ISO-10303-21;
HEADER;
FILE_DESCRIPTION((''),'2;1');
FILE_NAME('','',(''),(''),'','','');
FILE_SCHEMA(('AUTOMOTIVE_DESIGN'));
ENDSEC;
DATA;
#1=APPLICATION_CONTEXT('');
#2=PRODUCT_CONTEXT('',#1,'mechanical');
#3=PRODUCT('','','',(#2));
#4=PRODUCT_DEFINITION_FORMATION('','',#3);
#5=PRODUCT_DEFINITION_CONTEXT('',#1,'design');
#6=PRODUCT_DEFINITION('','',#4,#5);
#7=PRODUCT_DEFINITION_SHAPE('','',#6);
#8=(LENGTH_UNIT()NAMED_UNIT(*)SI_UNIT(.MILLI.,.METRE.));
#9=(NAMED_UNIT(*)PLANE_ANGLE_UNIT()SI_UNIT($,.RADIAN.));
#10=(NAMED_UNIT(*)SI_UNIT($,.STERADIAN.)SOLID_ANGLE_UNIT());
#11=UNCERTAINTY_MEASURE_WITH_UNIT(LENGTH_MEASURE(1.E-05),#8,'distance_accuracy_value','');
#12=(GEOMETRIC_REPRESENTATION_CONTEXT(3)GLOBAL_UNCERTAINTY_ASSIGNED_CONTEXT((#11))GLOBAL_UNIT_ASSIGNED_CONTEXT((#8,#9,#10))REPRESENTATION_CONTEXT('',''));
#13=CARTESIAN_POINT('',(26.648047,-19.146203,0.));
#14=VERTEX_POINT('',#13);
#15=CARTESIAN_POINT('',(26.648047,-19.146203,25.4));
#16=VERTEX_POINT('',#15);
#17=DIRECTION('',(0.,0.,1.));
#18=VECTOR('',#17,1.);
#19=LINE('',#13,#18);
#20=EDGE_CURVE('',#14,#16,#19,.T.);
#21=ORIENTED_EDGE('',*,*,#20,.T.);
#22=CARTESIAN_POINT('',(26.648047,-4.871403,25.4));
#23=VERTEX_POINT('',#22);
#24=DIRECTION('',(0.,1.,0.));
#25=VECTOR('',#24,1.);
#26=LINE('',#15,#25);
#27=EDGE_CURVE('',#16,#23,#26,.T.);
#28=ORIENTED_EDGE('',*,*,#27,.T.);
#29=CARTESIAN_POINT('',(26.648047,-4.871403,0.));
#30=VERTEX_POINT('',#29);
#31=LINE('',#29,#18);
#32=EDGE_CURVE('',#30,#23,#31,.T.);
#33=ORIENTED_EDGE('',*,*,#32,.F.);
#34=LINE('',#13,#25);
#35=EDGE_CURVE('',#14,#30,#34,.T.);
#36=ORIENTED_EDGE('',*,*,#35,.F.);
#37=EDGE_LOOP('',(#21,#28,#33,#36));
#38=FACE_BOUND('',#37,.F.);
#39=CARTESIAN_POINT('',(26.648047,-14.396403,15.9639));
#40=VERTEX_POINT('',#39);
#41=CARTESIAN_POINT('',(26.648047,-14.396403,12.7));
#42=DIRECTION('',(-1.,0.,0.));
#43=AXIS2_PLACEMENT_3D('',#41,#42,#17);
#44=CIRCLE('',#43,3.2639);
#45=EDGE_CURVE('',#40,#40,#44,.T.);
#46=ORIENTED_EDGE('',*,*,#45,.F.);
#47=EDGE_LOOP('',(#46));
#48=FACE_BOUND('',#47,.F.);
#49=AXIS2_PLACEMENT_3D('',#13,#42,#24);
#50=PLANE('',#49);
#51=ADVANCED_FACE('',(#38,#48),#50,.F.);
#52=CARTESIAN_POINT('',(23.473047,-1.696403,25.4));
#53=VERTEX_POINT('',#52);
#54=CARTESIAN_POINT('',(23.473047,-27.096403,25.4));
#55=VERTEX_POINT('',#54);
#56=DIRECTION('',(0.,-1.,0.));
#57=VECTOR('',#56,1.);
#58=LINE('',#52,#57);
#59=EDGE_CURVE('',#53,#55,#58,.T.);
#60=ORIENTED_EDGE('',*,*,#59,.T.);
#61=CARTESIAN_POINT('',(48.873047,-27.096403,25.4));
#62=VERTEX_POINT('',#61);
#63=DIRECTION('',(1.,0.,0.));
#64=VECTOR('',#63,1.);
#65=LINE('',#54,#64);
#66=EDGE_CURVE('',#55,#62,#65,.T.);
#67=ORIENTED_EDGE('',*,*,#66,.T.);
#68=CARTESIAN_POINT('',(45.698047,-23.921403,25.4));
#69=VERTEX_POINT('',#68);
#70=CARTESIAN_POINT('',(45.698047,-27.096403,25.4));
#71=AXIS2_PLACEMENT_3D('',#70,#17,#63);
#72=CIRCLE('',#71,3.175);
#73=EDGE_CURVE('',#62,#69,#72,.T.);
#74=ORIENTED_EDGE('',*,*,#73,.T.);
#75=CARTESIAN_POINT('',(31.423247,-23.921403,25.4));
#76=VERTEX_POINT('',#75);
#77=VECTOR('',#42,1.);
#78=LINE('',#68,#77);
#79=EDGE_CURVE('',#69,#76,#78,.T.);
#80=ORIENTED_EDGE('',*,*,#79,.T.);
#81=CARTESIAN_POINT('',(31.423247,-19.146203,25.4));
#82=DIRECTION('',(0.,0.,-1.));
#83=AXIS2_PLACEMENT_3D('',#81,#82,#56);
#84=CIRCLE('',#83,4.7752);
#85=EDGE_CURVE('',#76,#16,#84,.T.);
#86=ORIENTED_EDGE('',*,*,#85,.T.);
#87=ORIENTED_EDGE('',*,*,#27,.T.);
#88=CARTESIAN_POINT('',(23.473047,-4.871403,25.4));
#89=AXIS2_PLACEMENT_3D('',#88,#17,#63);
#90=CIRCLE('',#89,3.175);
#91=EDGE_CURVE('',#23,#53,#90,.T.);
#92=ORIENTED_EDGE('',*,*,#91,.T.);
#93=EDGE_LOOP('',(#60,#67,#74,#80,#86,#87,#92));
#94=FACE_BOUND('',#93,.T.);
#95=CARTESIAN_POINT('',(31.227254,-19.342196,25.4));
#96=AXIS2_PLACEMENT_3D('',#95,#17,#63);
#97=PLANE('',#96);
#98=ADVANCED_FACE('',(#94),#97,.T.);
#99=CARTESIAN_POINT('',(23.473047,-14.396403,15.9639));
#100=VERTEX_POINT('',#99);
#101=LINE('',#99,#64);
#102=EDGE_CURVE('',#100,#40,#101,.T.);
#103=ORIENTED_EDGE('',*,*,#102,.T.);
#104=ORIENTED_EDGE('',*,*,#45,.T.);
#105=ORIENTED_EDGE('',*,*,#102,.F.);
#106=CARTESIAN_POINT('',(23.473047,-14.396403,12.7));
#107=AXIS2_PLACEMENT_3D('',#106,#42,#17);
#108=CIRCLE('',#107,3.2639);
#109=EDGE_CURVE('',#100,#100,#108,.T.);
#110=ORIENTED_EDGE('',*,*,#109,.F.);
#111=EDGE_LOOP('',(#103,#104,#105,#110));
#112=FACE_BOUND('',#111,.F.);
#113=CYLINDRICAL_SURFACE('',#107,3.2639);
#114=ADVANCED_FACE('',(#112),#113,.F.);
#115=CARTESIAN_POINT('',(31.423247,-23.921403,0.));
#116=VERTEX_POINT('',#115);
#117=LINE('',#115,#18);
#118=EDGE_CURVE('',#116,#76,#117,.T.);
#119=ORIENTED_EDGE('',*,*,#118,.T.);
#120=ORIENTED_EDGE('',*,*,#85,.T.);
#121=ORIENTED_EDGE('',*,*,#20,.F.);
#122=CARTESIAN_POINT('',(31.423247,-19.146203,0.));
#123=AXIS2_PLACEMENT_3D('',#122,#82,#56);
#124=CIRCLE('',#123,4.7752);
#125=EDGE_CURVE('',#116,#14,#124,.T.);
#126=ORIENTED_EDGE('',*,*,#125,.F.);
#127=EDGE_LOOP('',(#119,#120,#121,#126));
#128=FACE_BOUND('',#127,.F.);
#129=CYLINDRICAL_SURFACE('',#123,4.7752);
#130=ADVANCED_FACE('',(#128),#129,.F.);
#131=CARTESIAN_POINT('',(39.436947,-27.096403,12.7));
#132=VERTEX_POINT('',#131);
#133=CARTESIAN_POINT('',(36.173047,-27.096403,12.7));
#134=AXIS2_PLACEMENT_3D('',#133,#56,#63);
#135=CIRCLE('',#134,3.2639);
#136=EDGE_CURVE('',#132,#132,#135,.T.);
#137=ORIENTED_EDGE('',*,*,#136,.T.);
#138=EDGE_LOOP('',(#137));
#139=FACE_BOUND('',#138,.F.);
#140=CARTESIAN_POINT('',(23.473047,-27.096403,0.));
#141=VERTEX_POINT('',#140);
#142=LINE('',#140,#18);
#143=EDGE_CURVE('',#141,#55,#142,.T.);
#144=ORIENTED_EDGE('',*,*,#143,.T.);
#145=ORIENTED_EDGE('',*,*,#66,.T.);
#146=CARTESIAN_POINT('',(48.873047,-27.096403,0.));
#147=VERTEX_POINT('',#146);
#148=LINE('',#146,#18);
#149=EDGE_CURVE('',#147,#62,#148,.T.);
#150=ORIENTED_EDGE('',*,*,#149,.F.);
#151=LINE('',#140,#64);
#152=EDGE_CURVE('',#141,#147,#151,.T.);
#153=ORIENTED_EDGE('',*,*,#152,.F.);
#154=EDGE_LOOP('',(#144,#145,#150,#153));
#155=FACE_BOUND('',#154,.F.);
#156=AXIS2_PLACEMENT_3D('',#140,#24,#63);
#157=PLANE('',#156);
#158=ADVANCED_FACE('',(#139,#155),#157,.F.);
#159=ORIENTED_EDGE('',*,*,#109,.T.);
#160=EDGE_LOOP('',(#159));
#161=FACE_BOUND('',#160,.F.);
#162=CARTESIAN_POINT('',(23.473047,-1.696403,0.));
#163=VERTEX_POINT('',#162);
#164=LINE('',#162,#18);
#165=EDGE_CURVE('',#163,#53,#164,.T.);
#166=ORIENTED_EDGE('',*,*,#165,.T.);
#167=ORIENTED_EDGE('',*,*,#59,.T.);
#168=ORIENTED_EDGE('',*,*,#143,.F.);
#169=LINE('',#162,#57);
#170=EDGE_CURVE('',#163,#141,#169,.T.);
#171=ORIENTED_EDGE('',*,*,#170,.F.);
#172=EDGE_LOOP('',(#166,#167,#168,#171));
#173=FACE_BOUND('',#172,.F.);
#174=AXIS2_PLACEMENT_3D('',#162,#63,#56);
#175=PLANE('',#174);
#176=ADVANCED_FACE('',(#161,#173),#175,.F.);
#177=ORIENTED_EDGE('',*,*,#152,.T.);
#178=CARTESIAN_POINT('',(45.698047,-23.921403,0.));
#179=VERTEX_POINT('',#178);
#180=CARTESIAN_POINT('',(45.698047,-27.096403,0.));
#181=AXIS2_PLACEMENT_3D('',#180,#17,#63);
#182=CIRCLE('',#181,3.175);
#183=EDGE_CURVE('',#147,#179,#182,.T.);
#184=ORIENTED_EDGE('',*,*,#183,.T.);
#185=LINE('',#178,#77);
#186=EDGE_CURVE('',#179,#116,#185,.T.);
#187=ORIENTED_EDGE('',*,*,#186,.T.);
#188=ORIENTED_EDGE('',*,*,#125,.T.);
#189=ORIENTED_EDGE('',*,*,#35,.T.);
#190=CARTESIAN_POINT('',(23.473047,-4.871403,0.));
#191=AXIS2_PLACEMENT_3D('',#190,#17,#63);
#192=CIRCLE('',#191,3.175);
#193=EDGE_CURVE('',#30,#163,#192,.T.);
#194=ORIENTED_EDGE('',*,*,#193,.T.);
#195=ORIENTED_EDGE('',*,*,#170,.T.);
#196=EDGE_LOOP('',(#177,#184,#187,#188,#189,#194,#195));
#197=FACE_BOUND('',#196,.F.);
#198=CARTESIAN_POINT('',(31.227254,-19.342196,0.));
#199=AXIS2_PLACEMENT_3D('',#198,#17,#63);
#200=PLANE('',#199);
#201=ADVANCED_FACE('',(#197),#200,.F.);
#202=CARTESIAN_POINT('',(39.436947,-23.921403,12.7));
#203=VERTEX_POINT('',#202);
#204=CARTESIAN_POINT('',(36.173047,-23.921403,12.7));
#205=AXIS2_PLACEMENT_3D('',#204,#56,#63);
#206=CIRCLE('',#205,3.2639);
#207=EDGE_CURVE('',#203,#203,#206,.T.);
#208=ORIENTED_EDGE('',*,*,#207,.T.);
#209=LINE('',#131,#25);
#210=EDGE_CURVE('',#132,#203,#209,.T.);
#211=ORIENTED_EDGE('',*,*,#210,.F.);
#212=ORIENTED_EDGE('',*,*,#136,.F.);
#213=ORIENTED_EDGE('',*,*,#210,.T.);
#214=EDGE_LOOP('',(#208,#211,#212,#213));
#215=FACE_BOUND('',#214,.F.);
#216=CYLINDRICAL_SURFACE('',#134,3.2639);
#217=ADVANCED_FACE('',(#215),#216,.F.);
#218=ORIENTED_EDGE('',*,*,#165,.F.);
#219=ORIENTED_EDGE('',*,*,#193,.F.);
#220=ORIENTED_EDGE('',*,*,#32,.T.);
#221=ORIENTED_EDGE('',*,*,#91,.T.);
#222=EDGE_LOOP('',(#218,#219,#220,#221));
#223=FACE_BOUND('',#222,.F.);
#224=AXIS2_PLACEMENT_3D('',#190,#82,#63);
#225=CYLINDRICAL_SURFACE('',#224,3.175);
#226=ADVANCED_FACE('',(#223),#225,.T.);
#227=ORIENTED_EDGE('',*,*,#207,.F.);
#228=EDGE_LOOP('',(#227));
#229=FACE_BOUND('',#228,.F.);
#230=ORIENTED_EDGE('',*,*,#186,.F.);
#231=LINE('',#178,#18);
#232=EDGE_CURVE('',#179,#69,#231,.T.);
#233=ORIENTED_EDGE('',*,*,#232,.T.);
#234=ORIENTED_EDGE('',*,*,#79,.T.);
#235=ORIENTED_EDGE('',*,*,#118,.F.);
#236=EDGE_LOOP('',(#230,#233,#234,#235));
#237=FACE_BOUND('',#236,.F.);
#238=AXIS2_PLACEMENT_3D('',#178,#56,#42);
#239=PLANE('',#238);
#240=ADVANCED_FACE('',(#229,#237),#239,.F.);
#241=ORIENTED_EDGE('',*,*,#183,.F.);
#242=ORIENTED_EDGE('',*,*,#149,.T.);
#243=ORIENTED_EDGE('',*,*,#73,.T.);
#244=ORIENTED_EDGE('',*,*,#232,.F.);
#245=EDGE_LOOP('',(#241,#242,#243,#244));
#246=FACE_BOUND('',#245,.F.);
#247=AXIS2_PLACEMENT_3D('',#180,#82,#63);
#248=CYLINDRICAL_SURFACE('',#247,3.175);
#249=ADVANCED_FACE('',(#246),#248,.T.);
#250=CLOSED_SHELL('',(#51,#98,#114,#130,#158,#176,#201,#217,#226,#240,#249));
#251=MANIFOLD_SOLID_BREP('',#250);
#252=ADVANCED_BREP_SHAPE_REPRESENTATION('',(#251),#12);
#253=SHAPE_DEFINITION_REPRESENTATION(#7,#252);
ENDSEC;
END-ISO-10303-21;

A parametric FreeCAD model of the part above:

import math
import FreeCAD as App
import Part
import Sketcher

V = App.Vector
Q = App.Units.Quantity

doc = App.newDocument("Part")
body = doc.addObject("PartDesign::Body", "Body")

sketch1 = body.newObject("Sketcher::SketchObject", "Sketch")
sketch1.AttachmentSupport = (doc.getObject("XY_Plane"), [""])
sketch1.MapMode = "FlatFace"
sketch1.addGeometry([
    Part.LineSegment(V(23.5, -1.7, 0), V(23.5, -27.1, 0)),
    Part.LineSegment(V(23.5, -27.1, 0), V(48.9, -27.1, 0)),
    Part.ArcOfCircle(Part.Circle(V(45.7, -27.1, 0), V(0, 0, 1), 3.2), math.radians(0), math.radians(90)),
    Part.LineSegment(V(45.7, -23.9, 0), V(31.4, -23.9, 0)),
    Part.ArcOfCircle(Part.Circle(V(31.4, -19.1, 0), V(0, 0, 1), 4.8), math.radians(180), math.radians(270)),
    Part.LineSegment(V(26.6, -19.1, 0), V(26.6, -4.9, 0)),
    Part.ArcOfCircle(Part.Circle(V(23.5, -4.9, 0), V(0, 0, 1), 3.2), math.radians(0), math.radians(90)),
], False)
sketch1.addConstraint([
    Sketcher.Constraint("Coincident", 0, 2, 1, 1),
    Sketcher.Constraint("Coincident", 1, 2, 2, 1),
    Sketcher.Constraint("Tangent", 2, 2, 3, 1),
    Sketcher.Constraint("Tangent", 3, 2, 4, 2),
    Sketcher.Constraint("Tangent", 4, 1, 5, 1),
    Sketcher.Constraint("Tangent", 5, 2, 6, 1),
    Sketcher.Constraint("Coincident", 6, 2, 0, 1),
    Sketcher.Constraint("Vertical", 0),
    Sketcher.Constraint("Horizontal", 1),
    Sketcher.Constraint("Horizontal", 3),
    Sketcher.Constraint("Vertical", 5),
    Sketcher.Constraint("Equal", 2, 6),
    Sketcher.Constraint("Horizontal", 2, 3, 0, 2),
    Sketcher.Constraint("Vertical", 6, 3, 0, 2),
    Sketcher.Constraint("Equal", 1, 0),
    Sketcher.Constraint("DistanceX", 1, 1, 1, 2, Q("1 in")),
    Sketcher.Constraint("Radius", 2, Q("0.125 in")),
    Sketcher.Constraint("Radius", 4, Q("0.188 in")),
    Sketcher.Constraint("DistanceX", -1, 1, 2, 3, 45.698047),
    Sketcher.Constraint("DistanceY", 2, 3, -1, 1, 27.096403),
])
pad1 = body.newObject("PartDesign::Pad", "Pad")
pad1.Profile = sketch1
pad1.Length = Q("1 in")

sketch2 = body.newObject("Sketcher::SketchObject", "Sketch001")
sketch2.AttachmentSupport = (doc.getObject("YZ_Plane"), [""])
sketch2.MapMode = "FlatFace"
sketch2.AttachmentOffset = App.Placement(V(0, 0, 23.473047), App.Rotation())
sketch2.addGeometry(Part.Circle(V(-14.4, 12.7, 0), V(0, 0, 1), 3.3), False)
sketch2.addConstraint([
    Sketcher.Constraint("Diameter", 0, Q("0.257 in")),
    Sketcher.Constraint("DistanceY", -1, 1, 0, 3, Q("0.5 in")),
    Sketcher.Constraint("DistanceX", 0, 3, -1, 1, 14.396403),
])
pocket1 = body.newObject("PartDesign::Pocket", "Pocket")
pocket1.Profile = sketch2
pocket1.Type = "ThroughAll"
pocket1.Reversed = True

sketch3 = body.newObject("Sketcher::SketchObject", "Sketch002")
sketch3.AttachmentSupport = (doc.getObject("XZ_Plane"), [""])
sketch3.MapMode = "FlatFace"
sketch3.AttachmentOffset = App.Placement(V(0, 0, 27.096403), App.Rotation())
sketch3.addGeometry(Part.Circle(V(36.2, 12.7, 0), V(0, 0, 1), 3.3), False)
sketch3.addConstraint([
    Sketcher.Constraint("Diameter", 0, Q("0.257 in")),
    Sketcher.Constraint("DistanceY", -1, 1, 0, 3, Q("0.5 in")),
    Sketcher.Constraint("DistanceX", -1, 1, 0, 3, 36.173047),
])
pocket2 = body.newObject("PartDesign::Pocket", "Pocket001")
pocket2.Profile = sketch3
pocket2.Type = "ThroughAll"

doc.recompute()
